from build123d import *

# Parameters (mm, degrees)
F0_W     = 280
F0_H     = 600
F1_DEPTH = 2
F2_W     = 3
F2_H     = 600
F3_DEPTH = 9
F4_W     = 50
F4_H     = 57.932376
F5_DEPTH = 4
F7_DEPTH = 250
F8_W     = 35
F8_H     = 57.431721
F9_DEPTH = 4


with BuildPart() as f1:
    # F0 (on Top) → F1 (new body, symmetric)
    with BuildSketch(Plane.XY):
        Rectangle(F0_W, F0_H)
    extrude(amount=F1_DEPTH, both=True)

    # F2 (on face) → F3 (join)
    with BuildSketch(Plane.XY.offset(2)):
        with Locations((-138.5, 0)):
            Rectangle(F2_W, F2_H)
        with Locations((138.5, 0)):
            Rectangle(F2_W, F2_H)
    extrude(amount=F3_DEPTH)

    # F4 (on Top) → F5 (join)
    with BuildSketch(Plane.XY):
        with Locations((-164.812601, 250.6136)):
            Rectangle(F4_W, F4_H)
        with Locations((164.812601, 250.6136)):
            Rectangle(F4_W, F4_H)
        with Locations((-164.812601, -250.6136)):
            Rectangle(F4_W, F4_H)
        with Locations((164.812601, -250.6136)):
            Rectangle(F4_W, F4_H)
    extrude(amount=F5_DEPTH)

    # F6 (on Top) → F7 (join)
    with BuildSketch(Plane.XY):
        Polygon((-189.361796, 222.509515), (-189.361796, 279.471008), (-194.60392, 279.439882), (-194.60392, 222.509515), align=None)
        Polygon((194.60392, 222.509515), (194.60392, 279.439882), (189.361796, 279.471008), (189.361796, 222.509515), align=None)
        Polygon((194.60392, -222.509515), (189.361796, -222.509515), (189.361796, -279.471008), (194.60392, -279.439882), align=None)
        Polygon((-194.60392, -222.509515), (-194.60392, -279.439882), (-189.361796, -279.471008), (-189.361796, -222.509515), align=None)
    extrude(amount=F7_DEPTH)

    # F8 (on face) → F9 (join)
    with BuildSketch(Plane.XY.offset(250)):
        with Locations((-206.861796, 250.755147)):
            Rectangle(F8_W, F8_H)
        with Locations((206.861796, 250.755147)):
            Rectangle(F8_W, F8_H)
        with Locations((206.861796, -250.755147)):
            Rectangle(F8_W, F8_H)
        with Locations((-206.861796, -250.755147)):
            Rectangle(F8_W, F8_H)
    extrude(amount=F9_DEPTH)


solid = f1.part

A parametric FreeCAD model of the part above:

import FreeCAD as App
import Part
import Sketcher

V = App.Vector


def add_polygon(sketch, points):
    """Adds a closed chain of lines whose ends are joined by coincident constraints."""
    first, n = sketch.GeometryCount, len(points)
    for a, b in zip(points, points[1:] + points[:1]):
        sketch.addGeometry(Part.LineSegment(App.Vector(*a, 0), App.Vector(*b, 0)), False)
    for i in range(n):
        sketch.addConstraint(Sketcher.Constraint("Coincident", first + i, 2, first + (i + 1) % n, 1))

doc = App.newDocument("Part")
params = doc.addObject("Spreadsheet::Sheet", "Params")
for row, (alias, value) in enumerate([
    ("sketch1_width", "280 mm"),
    ("sketch1_height", "600 mm"),
    ("pad1_length", "4 mm"),
    ("sketch2_width", "3 mm"),
    ("sketch2_height", "600 mm"),
    ("pad2_length", "9 mm"),
    ("sketch3_width", "50 mm"),
    ("pad3_length", "4 mm"),
    ("pad4_length", "250 mm"),
    ("sketch5_width", "35 mm"),
    ("pad5_length", "4 mm"),
], start=1):
    params.set(f"A{row}", alias)
    params.set(f"B{row}", "=" + value)
    params.setAlias(f"B{row}", alias)

body = doc.addObject("PartDesign::Body", "Body")

sketch1 = body.newObject("Sketcher::SketchObject", "Sketch")
sketch1.AttachmentSupport = (doc.getObject("XY_Plane"), [""])
sketch1.MapMode = "FlatFace"
add_polygon(sketch1, [(-140, 300), (-140, -300), (140, -300), (140, 300)])
sketch1.addConstraint([
    Sketcher.Constraint("Vertical", 0),
    Sketcher.Constraint("Horizontal", 1),
    Sketcher.Constraint("Vertical", 2),
    Sketcher.Constraint("Horizontal", 3),
    Sketcher.Constraint("Symmetric", 0, 2, 2, 2, -1, 1),
    Sketcher.Constraint("DistanceX", 1, 1, 1, 2, 280.0),
    Sketcher.Constraint("DistanceY", 0, 2, 0, 1, 600.0),
])
sketch1.setExpression("Constraints[9]", "Params.sketch1_width")
sketch1.setExpression("Constraints[10]", "Params.sketch1_height")
pad1 = body.newObject("PartDesign::Pad", "Pad")
pad1.Profile = sketch1
pad1.setExpression("Length", "Params.pad1_length")
pad1.Midplane = True

sketch2 = body.newObject("Sketcher::SketchObject", "Sketch001")
sketch2.AttachmentSupport = (doc.getObject("XY_Plane"), [""])
sketch2.MapMode = "FlatFace"
sketch2.AttachmentOffset = App.Placement(V(0, 0, 2), App.Rotation())
add_polygon(sketch2, [(-140, 300), (-140, -300), (-137, -300), (-137, 300)])
add_polygon(sketch2, [(137, 300), (137, -300), (140, -300), (140, 300)])
sketch2.addConstraint([
    Sketcher.Constraint("Vertical", 0),
    Sketcher.Constraint("Horizontal", 1),
    Sketcher.Constraint("Vertical", 2),
    Sketcher.Constraint("Horizontal", 3),
    Sketcher.Constraint("Vertical", 4),
    Sketcher.Constraint("Horizontal", 5),
    Sketcher.Constraint("Vertical", 6),
    Sketcher.Constraint("Horizontal", 7),
    Sketcher.Constraint("Symmetric", 2, 2, 4, 2, -1, 1),
    Sketcher.Constraint("Symmetric", 0, 2, 6, 2, -1, 1),
    Sketcher.Constraint("Horizontal", 1, 2, 4, 2),
    Sketcher.Constraint("DistanceX", 1, 1, 1, 2, 3.0),
    Sketcher.Constraint("DistanceY", 0, 2, 0, 1, 600.0),
    Sketcher.Constraint("DistanceX", 0, 2, -1, 1, 140.0),
])
sketch2.setExpression("Constraints[19]", "Params.sketch2_width")
sketch2.setExpression("Constraints[20]", "Params.sketch2_height")
pad2 = body.newObject("PartDesign::Pad", "Pad001")
pad2.Profile = sketch2
pad2.setExpression("Length", "Params.pad2_length")

sketch3 = body.newObject("Sketcher::SketchObject", "Sketch002")
sketch3.AttachmentSupport = (doc.getObject("XY_Plane"), [""])
sketch3.MapMode = "FlatFace"
add_polygon(sketch3, [(-190, 280), (-190, 222), (-140, 222), (-140, 280)])
add_polygon(sketch3, [(140, 280), (140, 222), (190, 222), (190, 280)])
add_polygon(sketch3, [(-190, -222), (-190, -280), (-140, -280), (-140, -222)])
add_polygon(sketch3, [(140, -222), (140, -280), (190, -280), (190, -222)])
sketch3.addConstraint([
    Sketcher.Constraint("Vertical", 0),
    Sketcher.Constraint("Horizontal", 1),
    Sketcher.Constraint("Vertical", 2),
    Sketcher.Constraint("Horizontal", 3),
    Sketcher.Constraint("Vertical", 4),
    Sketcher.Constraint("Horizontal", 5),
    Sketcher.Constraint("Vertical", 6),
    Sketcher.Constraint("Horizontal", 7),
    Sketcher.Constraint("Vertical", 8),
    Sketcher.Constraint("Horizontal", 9),
    Sketcher.Constraint("Vertical", 10),
    Sketcher.Constraint("Horizontal", 11),
    Sketcher.Constraint("Vertical", 12),
    Sketcher.Constraint("Horizontal", 13),
    Sketcher.Constraint("Vertical", 14),
    Sketcher.Constraint("Horizontal", 15),
    Sketcher.Constraint("Symmetric", 6, 2, 8, 2, -1, 1),
    Sketcher.Constraint("Symmetric", 4, 2, 10, 2, -1, 1),
    Sketcher.Constraint("Symmetric", 2, 2, 12, 2, -1, 1),
    Sketcher.Constraint("Symmetric", 0, 2, 14, 2, -1, 1),
    Sketcher.Constraint("Symmetric", 1, 2, 4, 2, -2),
    Sketcher.Constraint("Symmetric", 3, 2, 6, 2, -2),
    Sketcher.Constraint("DistanceX", 1, 1, 1, 2, 50.0),
    Sketcher.Constraint("DistanceX", 0, 2, -1, 1, 189.812601),
    Sketcher.Constraint("DistanceY", 8, 2, 0, 2, 501.2272),
    Sketcher.Constraint("DistanceY", 0, 2, 0, 1, 57.932376),
])
sketch3.setExpression("Constraints[38]", "Params.sketch3_width")
pad3 = body.newObject("PartDesign::Pad", "Pad002")
pad3.Profile = sketch3
pad3.setExpression("Length", "Params.pad3_length")

sketch4 = body.newObject("Sketcher::SketchObject", "Sketch003")
sketch4.AttachmentSupport = (doc.getObject("XY_Plane"), [""])
sketch4.MapMode = "FlatFace"
add_polygon(sketch4, [(-189, 223), (-189, 279), (-195, 279), (-195, 223)])
add_polygon(sketch4, [(195, 223), (195, 279), (189, 279), (189, 223)])
add_polygon(sketch4, [(195, -223), (189, -223), (189, -279), (195, -279)])
add_polygon(sketch4, [(-195, -223), (-195, -279), (-189, -279), (-189, -223)])
sketch4.addConstraint([
    Sketcher.Constraint("Vertical", 0),
    Sketcher.Constraint("Vertical", 2),
    Sketcher.Constraint("Horizontal", 3),
    Sketcher.Constraint("Vertical", 4),
    Sketcher.Constraint("Vertical", 6),
    Sketcher.Constraint("Horizontal", 7),
    Sketcher.Constraint("Horizontal", 8),
    Sketcher.Constraint("Vertical", 9),
    Sketcher.Constraint("Vertical", 11),
    Sketcher.Constraint("Vertical", 12),
    Sketcher.Constraint("Vertical", 14),
    Sketcher.Constraint("Horizontal", 15),
    Sketcher.Constraint("Symmetric", 3, 2, 8, 2, -1, 1),
    Sketcher.Constraint("Symmetric", 1, 2, 10, 2, -1, 1),
    Sketcher.Constraint("Symmetric", 4, 2, 12, 2, -1, 1),
    Sketcher.Constraint("Symmetric", 5, 2, 13, 2, -1, 1),
    Sketcher.Constraint("Symmetric", 1, 2, 4, 2, -2),
    Sketcher.Constraint("Symmetric", 0, 2, 5, 2, -2),
    Sketcher.Constraint("Parallel", 1, 10),
    Sketcher.Constraint("Horizontal", 3, 2, 6, 2),
    Sketcher.Constraint("Horizontal", 11, 2, 14, 2),
    Sketcher.Constraint("DistanceX", 3, 1, 3, 2, 5.242124),
    Sketcher.Constraint("DistanceY", 0, 1, 0, 2, 56.961493),
    Sketcher.Constraint("DistanceY", 2, 2, 2, 1, 56.930367),
    Sketcher.Constraint("DistanceY", -1, 1, 0, 2, 279.471008),
    Sketcher.Constraint("DistanceX", 1, 2, -1, 1, 194.60392),
])
pad4 = body.newObject("PartDesign::Pad", "Pad003")
pad4.Profile = sketch4
pad4.setExpression("Length", "Params.pad4_length")

sketch5 = body.newObject("Sketcher::SketchObject", "Sketch004")
sketch5.AttachmentSupport = (doc.getObject("XY_Plane"), [""])
sketch5.MapMode = "FlatFace"
sketch5.AttachmentOffset = App.Placement(V(0, 0, 250), App.Rotation())
add_polygon(sketch5, [(-224, 279), (-224, 222), (-189, 222), (-189, 279)])
add_polygon(sketch5, [(189, 279), (189, 222), (224, 222), (224, 279)])
add_polygon(sketch5, [(189, -222), (189, -279), (224, -279), (224, -222)])
add_polygon(sketch5, [(-224, -222), (-224, -279), (-189, -279), (-189, -222)])
sketch5.addConstraint([
    Sketcher.Constraint("Vertical", 0),
    Sketcher.Constraint("Horizontal", 1),
    Sketcher.Constraint("Vertical", 2),
    Sketcher.Constraint("Horizontal", 3),
    Sketcher.Constraint("Vertical", 4),
    Sketcher.Constraint("Horizontal", 5),
    Sketcher.Constraint("Vertical", 6),
    Sketcher.Constraint("Horizontal", 7),
    Sketcher.Constraint("Vertical", 8),
    Sketcher.Constraint("Horizontal", 9),
    Sketcher.Constraint("Vertical", 10),
    Sketcher.Constraint("Horizontal", 11),
    Sketcher.Constraint("Vertical", 12),
    Sketcher.Constraint("Horizontal", 13),
    Sketcher.Constraint("Vertical", 14),
    Sketcher.Constraint("Horizontal", 15),
    Sketcher.Constraint("Symmetric", 2, 2, 8, 2, -1, 1),
    Sketcher.Constraint("Symmetric", 0, 2, 10, 2, -1, 1),
    Sketcher.Constraint("Symmetric", 6, 2, 12, 2, -1, 1),
    Sketcher.Constraint("Symmetric", 4, 2, 14, 2, -1, 1),
    Sketcher.Constraint("Symmetric", 1, 2, 4, 2, -2),
    Sketcher.Constraint("Symmetric", 3, 2, 6, 2, -2),
    Sketcher.Constraint("DistanceX", 1, 1, 1, 2, 35.0),
    Sketcher.Constraint("DistanceY", 0, 2, 0, 1, 57.431721),
    Sketcher.Constraint("DistanceX", 1, 2, 4, 2, 378.723592),
    Sketcher.Constraint("DistanceY", -1, 1, 0, 2, 222.039287),
])
sketch5.setExpression("Constraints[38]", "Params.sketch5_width")
pad5 = body.newObject("PartDesign::Pad", "Pad004")
pad5.Profile = sketch5
pad5.setExpression("Length", "Params.pad5_length")

doc.recompute()
